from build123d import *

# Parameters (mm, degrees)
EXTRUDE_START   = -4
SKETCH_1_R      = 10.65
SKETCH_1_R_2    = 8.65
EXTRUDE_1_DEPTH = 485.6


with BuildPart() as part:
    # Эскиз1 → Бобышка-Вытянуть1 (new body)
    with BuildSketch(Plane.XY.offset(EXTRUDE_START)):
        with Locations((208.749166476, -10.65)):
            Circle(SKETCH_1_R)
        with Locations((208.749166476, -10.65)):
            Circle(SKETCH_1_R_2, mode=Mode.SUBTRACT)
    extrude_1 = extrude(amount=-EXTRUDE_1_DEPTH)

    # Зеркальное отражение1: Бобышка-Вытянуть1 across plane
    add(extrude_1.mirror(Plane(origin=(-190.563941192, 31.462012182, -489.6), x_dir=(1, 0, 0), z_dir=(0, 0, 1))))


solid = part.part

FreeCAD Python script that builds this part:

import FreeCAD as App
import Part
import Sketcher

doc = App.newDocument("Part")
body = doc.addObject("PartDesign::Body", "Body")

sketch1 = body.newObject("Sketcher::SketchObject", "Sketch")
sketch1.AttachmentSupport = (doc.getObject("XY_Plane"), [""])
sketch1.MapMode = "FlatFace"
sketch1.AttachmentOffset = App.Placement(App.Vector(0, 0, -4), App.Rotation())
sketch1.addGeometry([
    Part.Circle(App.Vector(209, -11, 0), App.Vector(0, 0, 1), 11),
    Part.Circle(App.Vector(209, -11, 0), App.Vector(0, 0, 1), 9),
], False)
sketch1.addConstraint([
    Sketcher.Constraint("Coincident", 1, 3, 0, 3),
    Sketcher.Constraint("Diameter", 0, 21.3),
    Sketcher.Constraint("Diameter", 1, 17.3),
    Sketcher.Constraint("DistanceY", 0, 3, -1, 1, 10.65),
    Sketcher.Constraint("DistanceX", -1, 1, 0, 3, 208.749166),
])
pad1 = body.newObject("PartDesign::Pad", "Pad")
pad1.Profile = sketch1
pad1.Length = 485.6
pad1.Reversed = True
doc.recompute()

datumplane = body.newObject("PartDesign::Plane", "DatumPlane")
datumplane.AttachmentSupport = (doc.getObject("XY_Plane"), [""])
datumplane.MapMode = "FlatFace"
datumplane.AttachmentOffset = App.Placement(App.Vector(0, 0, -489.6), App.Rotation())
mirrored = body.newObject("PartDesign::Mirrored", "Mirrored")
mirrored.Originals = [pad1]
mirrored.MirrorPlane = (datumplane, [""])
body.Tip = mirrored

doc.recompute()
